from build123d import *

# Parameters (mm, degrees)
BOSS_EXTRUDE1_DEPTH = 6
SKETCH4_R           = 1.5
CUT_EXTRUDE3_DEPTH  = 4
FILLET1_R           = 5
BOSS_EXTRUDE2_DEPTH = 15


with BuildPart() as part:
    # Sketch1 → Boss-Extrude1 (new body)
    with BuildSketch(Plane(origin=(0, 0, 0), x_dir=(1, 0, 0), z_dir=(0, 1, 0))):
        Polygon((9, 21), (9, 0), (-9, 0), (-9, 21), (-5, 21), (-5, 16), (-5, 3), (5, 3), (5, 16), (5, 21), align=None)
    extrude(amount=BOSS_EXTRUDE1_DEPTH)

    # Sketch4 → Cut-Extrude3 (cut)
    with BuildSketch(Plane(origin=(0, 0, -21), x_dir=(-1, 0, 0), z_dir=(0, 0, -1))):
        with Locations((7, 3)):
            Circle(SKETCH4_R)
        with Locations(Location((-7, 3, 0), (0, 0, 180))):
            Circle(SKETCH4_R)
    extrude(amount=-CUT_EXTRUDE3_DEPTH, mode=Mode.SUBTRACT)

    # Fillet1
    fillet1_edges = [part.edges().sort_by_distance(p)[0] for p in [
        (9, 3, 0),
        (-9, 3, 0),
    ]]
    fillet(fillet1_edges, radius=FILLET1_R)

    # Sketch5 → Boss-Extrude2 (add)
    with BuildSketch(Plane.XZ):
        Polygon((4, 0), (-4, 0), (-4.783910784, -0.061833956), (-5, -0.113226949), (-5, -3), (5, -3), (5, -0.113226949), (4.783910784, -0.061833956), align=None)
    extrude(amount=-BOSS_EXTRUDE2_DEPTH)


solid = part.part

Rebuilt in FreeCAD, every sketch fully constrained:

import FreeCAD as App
import Part
import Sketcher
from FreeCAD import Vector


def edges_at(feature, points):
    """Names of the edges that pass closest to the given points."""
    edges = feature.Shape.Edges
    near = lambda p: min(range(len(edges)), key=lambda i: edges[i].distToShape(Part.Vertex(*p))[0])
    return sorted({f"Edge{near(p) + 1}" for p in points})

doc = App.newDocument("Part")
body = doc.addObject("PartDesign::Body", "Body")

# Sketch on XZ plane
sketch1 = doc.addObject("Sketcher::SketchObject", "Sketch")
body.addObject(sketch1)
sketch1.AttachmentSupport = (doc.XZ_Plane, [""])
sketch1.MapMode = "FlatFace"
sketch1.addGeometry([
    Part.LineSegment(Vector(9, 0, 0), Vector(9, -21, 0)),  # 0
    Part.LineSegment(Vector(9, -21, 0), Vector(5, -21, 0)),  # 1
    Part.LineSegment(Vector(5, -21, 0), Vector(5, -3, 0)),  # 2
    Part.LineSegment(Vector(5, -3, 0), Vector(-5, -3, 0)),  # 3
    Part.LineSegment(Vector(-5, -3, 0), Vector(-5, -21, 0)),  # 4
    Part.LineSegment(Vector(-5, -21, 0), Vector(-9, -21, 0)),  # 5
    Part.LineSegment(Vector(-9, -21, 0), Vector(-9, 0, 0)),  # 6
    Part.LineSegment(Vector(-9, 0, 0), Vector(9, 0, 0)),  # 7
], False)
sketch1.addConstraint([
    Sketcher.Constraint("Coincident", 0, 2, 1, 1),
    Sketcher.Constraint("Coincident", 1, 2, 2, 1),
    Sketcher.Constraint("Coincident", 2, 2, 3, 1),
    Sketcher.Constraint("Coincident", 3, 2, 4, 1),
    Sketcher.Constraint("Coincident", 4, 2, 5, 1),
    Sketcher.Constraint("Coincident", 5, 2, 6, 1),
    Sketcher.Constraint("Coincident", 6, 2, 7, 1),
    Sketcher.Constraint("Coincident", 7, 2, 0, 1),
    Sketcher.Constraint("Vertical", 0),
    Sketcher.Constraint("Horizontal", 1),
    Sketcher.Constraint("Vertical", 2),
    Sketcher.Constraint("Horizontal", 3),
    Sketcher.Constraint("Vertical", 4),
    Sketcher.Constraint("Horizontal", 5),
    Sketcher.Constraint("Vertical", 6),
    Sketcher.Constraint("Horizontal", 7),
    Sketcher.Constraint("Symmetric", 6, 2, 7, 2, -1, 1),
    Sketcher.Constraint("Symmetric", 1, 2, 4, 2, -2),
    Sketcher.Constraint("Equal", 7, 2),
    Sketcher.Constraint("DistanceX", 1, 2, 1, 1, 4.0),
    Sketcher.Constraint("DistanceX", 3, 2, 3, 1, 10.0),
    Sketcher.Constraint("DistanceY", 0, 2, 0, 1, 21.0),
])
pad1 = doc.addObject("PartDesign::Pad", "Pad")
body.addObject(pad1)
pad1.Profile = sketch1
pad1.Length = 6
pad1.Reversed = True

# Sketch on XY plane
sketch2 = doc.addObject("Sketcher::SketchObject", "Sketch001")
body.addObject(sketch2)
sketch2.AttachmentSupport = (doc.XY_Plane, [""])
sketch2.MapMode = "FlatFace"
sketch2.AttachmentOffset = App.Placement(Vector(0, 0, -21), App.Rotation())
sketch2.addGeometry([
    Part.Circle(Vector(-7, 3, 0), Vector(0, 0, 1), 1.5),
    Part.Circle(Vector(7, 3, 0), Vector(0, 0, 1), 1.5),
], False)
sketch2.addConstraint([
    Sketcher.Constraint("Equal", 0, 1),
    Sketcher.Constraint("Symmetric", 0, 3, 1, 3, -2),
    Sketcher.Constraint("Diameter", 0, 3.0),
    Sketcher.Constraint("DistanceX", 0, 3, -1, 1, 7.0),
    Sketcher.Constraint("DistanceY", -1, 1, 0, 3, 3.0),
])
pocket1 = doc.addObject("PartDesign::Pocket", "Pocket")
body.addObject(pocket1)
pocket1.Profile = sketch2
pocket1.Length = 4
pocket1.Reversed = True
doc.recompute()

fillet = doc.addObject("PartDesign::Fillet", "Fillet")
body.addObject(fillet)
fillet.Base = (pocket1, edges_at(pocket1, [(9, 3, 0), (-9, 3, 0)]))
fillet.Radius = 5

# Sketch on XZ plane
sketch3 = doc.addObject("Sketcher::SketchObject", "Sketch002")
body.addObject(sketch3)
sketch3.AttachmentSupport = (doc.XZ_Plane, [""])
sketch3.MapMode = "FlatFace"
sketch3.addGeometry([
    Part.LineSegment(Vector(4, 0, 0), Vector(-4, 0, 0)),  # 0
    Part.LineSegment(Vector(-4, 0, 0), Vector(-4.783911, -0.061834, 0)),  # 1
    Part.LineSegment(Vector(-4.783911, -0.061834, 0), Vector(-5, -0.113227, 0)),  # 2
    Part.LineSegment(Vector(-5, -0.113227, 0), Vector(-5, -3, 0)),  # 3
    Part.LineSegment(Vector(-5, -3, 0), Vector(5, -3, 0)),  # 4
    Part.LineSegment(Vector(5, -3, 0), Vector(5, -0.113227, 0)),  # 5
    Part.LineSegment(Vector(5, -0.113227, 0), Vector(4.783911, -0.061834, 0)),  # 6
    Part.LineSegment(Vector(4.783911, -0.061834, 0), Vector(4, 0, 0)),  # 7
], False)
sketch3.addConstraint([
    Sketcher.Constraint("Coincident", 0, 2, 1, 1),
    Sketcher.Constraint("Coincident", 1, 2, 2, 1),
    Sketcher.Constraint("Coincident", 2, 2, 3, 1),
    Sketcher.Constraint("Coincident", 3, 2, 4, 1),
    Sketcher.Constraint("Coincident", 4, 2, 5, 1),
    Sketcher.Constraint("Coincident", 5, 2, 6, 1),
    Sketcher.Constraint("Coincident", 6, 2, 7, 1),
    Sketcher.Constraint("Coincident", 7, 2, 0, 1),
    Sketcher.Constraint("Horizontal", 0),
    Sketcher.Constraint("Vertical", 3),
    Sketcher.Constraint("Horizontal", 4),
    Sketcher.Constraint("Vertical", 5),
    Sketcher.Constraint("Symmetric", 0, 2, 7, 2, -1, 1),
    Sketcher.Constraint("Symmetric", 2, 2, 5, 2, -2),
    Sketcher.Constraint("Symmetric", 1, 2, 6, 2, -2),
    Sketcher.Constraint("DistanceX", 0, 2, 0, 1, 8.0),
    Sketcher.Constraint("DistanceX", 4, 1, 4, 2, 10.0),
    Sketcher.Constraint("DistanceY", 3, 2, -1, 1, 3.0),
    Sketcher.Constraint("DistanceY", 3, 2, 3, 1, 2.886773),
    Sketcher.Constraint("DistanceX", 1, 2, -1, 1, 4.783911),
    Sketcher.Constraint("Distance", 1, 0.786346),
])
pad2 = doc.addObject("PartDesign::Pad", "Pad001")
body.addObject(pad2)
pad2.Profile = sketch3
pad2.Length = 15
pad2.Reversed = True

doc.recompute()
